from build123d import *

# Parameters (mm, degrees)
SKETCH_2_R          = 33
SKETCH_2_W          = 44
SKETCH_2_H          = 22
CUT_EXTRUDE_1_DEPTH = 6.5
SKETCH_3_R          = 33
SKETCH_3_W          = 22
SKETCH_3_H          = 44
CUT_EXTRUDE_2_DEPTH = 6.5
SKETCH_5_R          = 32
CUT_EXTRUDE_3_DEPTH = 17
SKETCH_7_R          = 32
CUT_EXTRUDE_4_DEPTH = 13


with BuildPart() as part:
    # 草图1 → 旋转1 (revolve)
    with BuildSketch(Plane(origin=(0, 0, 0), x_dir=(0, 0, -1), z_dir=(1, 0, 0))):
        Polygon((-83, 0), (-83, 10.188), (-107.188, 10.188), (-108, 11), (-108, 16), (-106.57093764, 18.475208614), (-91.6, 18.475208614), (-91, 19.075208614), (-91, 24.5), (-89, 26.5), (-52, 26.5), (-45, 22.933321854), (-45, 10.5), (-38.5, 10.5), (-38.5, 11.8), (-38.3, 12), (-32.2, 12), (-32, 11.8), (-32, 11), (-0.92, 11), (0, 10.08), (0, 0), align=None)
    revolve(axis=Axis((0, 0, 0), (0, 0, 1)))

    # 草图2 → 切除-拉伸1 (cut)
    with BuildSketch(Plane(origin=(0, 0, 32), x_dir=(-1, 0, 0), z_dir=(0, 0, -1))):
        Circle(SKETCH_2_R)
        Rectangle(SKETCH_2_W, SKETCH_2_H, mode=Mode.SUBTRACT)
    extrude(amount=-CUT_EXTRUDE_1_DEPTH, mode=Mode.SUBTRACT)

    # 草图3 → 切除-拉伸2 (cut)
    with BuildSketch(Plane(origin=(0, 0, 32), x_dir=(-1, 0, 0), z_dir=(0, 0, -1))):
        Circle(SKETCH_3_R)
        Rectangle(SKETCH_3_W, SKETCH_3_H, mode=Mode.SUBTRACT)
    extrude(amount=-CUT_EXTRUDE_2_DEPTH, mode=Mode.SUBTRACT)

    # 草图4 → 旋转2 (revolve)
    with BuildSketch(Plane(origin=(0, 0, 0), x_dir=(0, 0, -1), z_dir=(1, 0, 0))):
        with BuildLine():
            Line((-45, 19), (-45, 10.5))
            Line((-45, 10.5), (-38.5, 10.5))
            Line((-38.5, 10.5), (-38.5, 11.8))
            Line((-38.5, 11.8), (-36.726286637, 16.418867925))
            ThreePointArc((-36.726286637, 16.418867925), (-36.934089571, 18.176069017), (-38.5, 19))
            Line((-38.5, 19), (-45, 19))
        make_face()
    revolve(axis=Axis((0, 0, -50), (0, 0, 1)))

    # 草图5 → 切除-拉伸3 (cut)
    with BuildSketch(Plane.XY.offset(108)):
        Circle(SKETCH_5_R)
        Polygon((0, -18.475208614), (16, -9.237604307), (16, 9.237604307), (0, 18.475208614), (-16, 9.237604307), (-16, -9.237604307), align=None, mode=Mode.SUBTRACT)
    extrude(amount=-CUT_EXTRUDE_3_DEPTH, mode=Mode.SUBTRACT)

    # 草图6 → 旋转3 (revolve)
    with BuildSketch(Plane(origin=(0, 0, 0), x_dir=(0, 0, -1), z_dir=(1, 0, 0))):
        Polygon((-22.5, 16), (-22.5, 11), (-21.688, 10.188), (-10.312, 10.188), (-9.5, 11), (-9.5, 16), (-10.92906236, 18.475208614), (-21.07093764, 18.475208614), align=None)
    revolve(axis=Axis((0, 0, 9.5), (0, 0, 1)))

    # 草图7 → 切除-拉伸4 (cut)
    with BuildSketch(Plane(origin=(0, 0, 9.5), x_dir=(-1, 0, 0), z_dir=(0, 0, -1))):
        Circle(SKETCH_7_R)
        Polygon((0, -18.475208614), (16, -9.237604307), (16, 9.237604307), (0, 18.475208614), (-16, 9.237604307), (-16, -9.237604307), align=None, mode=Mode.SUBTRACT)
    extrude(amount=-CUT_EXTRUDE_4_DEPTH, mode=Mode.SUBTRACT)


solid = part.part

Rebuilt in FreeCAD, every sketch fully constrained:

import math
import FreeCAD as App
import Part
import Sketcher

V = App.Vector
Q = App.Units.Quantity


def add_polygon(sketch, points):
    """Adds a closed chain of lines whose ends are joined by coincident constraints."""
    first, n = sketch.GeometryCount, len(points)
    for a, b in zip(points, points[1:] + points[:1]):
        sketch.addGeometry(Part.LineSegment(App.Vector(*a, 0), App.Vector(*b, 0)), False)
    for i in range(n):
        sketch.addConstraint(Sketcher.Constraint("Coincident", first + i, 2, first + (i + 1) % n, 1))

doc = App.newDocument("Part")
params = doc.addObject("Spreadsheet::Sheet", "Params")
for row, (alias, value) in enumerate([
    ("sketch1_width", "5 mm"),
    ("sketch1_height", "83 mm"),
    ("sketch1_height2", "37 mm"),
    ("sketch1_width2", "0.8 mm"),
    ("sketch1_width3", "1.3 mm"),
    ("revolution_angle", "360 deg"),
    ("sketch2_diameter", "66 mm"),
    ("sketch2_width", "44 mm"),
    ("sketch2_height", "22 mm"),
    ("pocket1_length", "6.5 mm"),
    ("sketch3_diameter", "66 mm"),
    ("sketch3_width", "22 mm"),
    ("sketch3_height", "44 mm"),
    ("pocket2_length", "6.5 mm"),
    ("sketch4_radius", "1.9 mm"),
    ("sketch4_width", "8.5 mm"),
    ("sketch4_width2", "1.3 mm"),
    ("sketch4_height", "6.5 mm"),
    ("revolution2_angle", "360 deg"),
    ("sketch5_diameter", "64 mm"),
    ("pocket3_length", "17 mm"),
    ("sketch6_width", "5 mm"),
    ("revolution3_angle", "360 deg"),
    ("sketch7_diameter", "64 mm"),
    ("pocket4_length", "13 mm"),
], start=1):
    params.set(f"A{row}", alias)
    params.set(f"B{row}", "=" + value)
    params.setAlias(f"B{row}", alias)

body = doc.addObject("PartDesign::Body", "Body")

sketch1 = doc.addObject("Sketcher::SketchObject", "Sketch")
body.addObject(sketch1)
sketch1.AttachmentSupport = (doc.YZ_Plane, [""])
sketch1.MapMode = "FlatFace"
add_polygon(sketch1, [(10.188, 83), (0, 83), (0, 0), (10.08, 0), (11, 0.92), (11, 32), (11.8, 32), (12, 32.2), (12, 38.3), (11.8, 38.5), (10.5, 38.5), (10.5, 45), (22.933322, 45), (26.5, 52), (26.5, 89), (24.5, 91), (19.075209, 91), (18.475209, 91.6), (18.475209, 106.570938), (16, 108), (11, 108), (10.188, 107.188)])
sketch1.addConstraint(Sketcher.Constraint("Horizontal", 0))
sketch1.addConstraint(Sketcher.Constraint("Vertical", 1))
sketch1.addConstraint(Sketcher.Constraint("Horizontal", 2))
sketch1.addConstraint(Sketcher.Constraint("Vertical", 4))
sketch1.addConstraint(Sketcher.Constraint("Horizontal", 5))
sketch1.addConstraint(Sketcher.Constraint("Vertical", 7))
sketch1.addConstraint(Sketcher.Constraint("Horizontal", 9))
sketch1.addConstraint(Sketcher.Constraint("Vertical", 10))
sketch1.addConstraint(Sketcher.Constraint("Horizontal", 11))
sketch1.addConstraint(Sketcher.Constraint("Vertical", 13))
sketch1.addConstraint(Sketcher.Constraint("Horizontal", 15))
sketch1.addConstraint(Sketcher.Constraint("Vertical", 17))
sketch1.addConstraint(Sketcher.Constraint("Horizontal", 19))
sketch1.addConstraint(Sketcher.Constraint("Vertical", 21))
sketch1.addConstraint(Sketcher.Constraint("Coincident", 1, 2, -1, 1))
sketch1.addConstraint(Sketcher.Constraint("Parallel", 3, 6))
sketch1.addConstraint(Sketcher.Constraint("Perpendicular", 6, 8))
sketch1.addConstraint(Sketcher.Constraint("Parallel", 8, 14))
sketch1.addConstraint(Sketcher.Constraint("Parallel", 14, 16))
sketch1.addConstraint(Sketcher.Constraint("Perpendicular", 16, 20))
sketch1.addConstraint(Sketcher.Constraint("Vertical", 5, 2, 8, 2))
sketch1.addConstraint(Sketcher.Constraint("Vertical", 4, 2, 19, 2))
sketch1.addConstraint(Sketcher.Constraint("Equal", 6, 8))
sketch1.addConstraint(Sketcher.Constraint("DistanceX", 19, 2, 19, 1, 5.0))
sketch1.addConstraint(Sketcher.Constraint("DistanceY", 1, 2, 1, 1, 83.0))
sketch1.addConstraint(Sketcher.Constraint("DistanceY", 13, 1, 13, 2, 37.0))
sketch1.addConstraint(Sketcher.Constraint("Angle", 12, Q("63 deg")))
sketch1.addConstraint(Sketcher.Constraint("Angle", 18, Q("150 deg")))
sketch1.addConstraint(Sketcher.Constraint("DistanceX", 5, 1, 5, 2, 0.8))
sketch1.addConstraint(Sketcher.Constraint("DistanceX", 9, 2, 9, 1, 1.3))
sketch1.addConstraint(Sketcher.Constraint("DistanceY", 7, 1, 7, 2, 6.1))
sketch1.addConstraint(Sketcher.Constraint("DistanceY", 10, 1, 10, 2, 6.5))
sketch1.addConstraint(Sketcher.Constraint("DistanceX", -1, 1, 3, 2, 11.0))
sketch1.addConstraint(Sketcher.Constraint("DistanceY", -1, 1, 4, 2, 32.0))
sketch1.addConstraint(Sketcher.Constraint("DistanceX", -1, 1, 6, 2, 12.0))
sketch1.addConstraint(Sketcher.Constraint("DistanceY", -1, 1, 12, 2, 52.0))
sketch1.addConstraint(Sketcher.Constraint("DistanceY", -1, 1, 14, 2, 91.0))
sketch1.addConstraint(Sketcher.Constraint("DistanceY", -1, 1, 18, 2, 108.0))
sketch1.addConstraint(Sketcher.Constraint("DistanceX", 10, 2, 12, 2, 16.0))
sketch1.addConstraint(Sketcher.Constraint("DistanceX", 2, 1, 2, 2, 10.08))
sketch1.addConstraint(Sketcher.Constraint("DistanceY", -1, 1, 16, 2, 91.6))
sketch1.addConstraint(Sketcher.Constraint("DistanceX", 0, 2, 0, 1, 10.188))
sketch1.addConstraint(Sketcher.Constraint("DistanceX", 15, 2, 15, 1, 5.424791))
sketch1.setExpression("Constraints[45]", "Params.sketch1_width")
sketch1.setExpression("Constraints[46]", "Params.sketch1_height")
sketch1.setExpression("Constraints[47]", "Params.sketch1_height2")
sketch1.setExpression("Constraints[50]", "Params.sketch1_width2")
sketch1.setExpression("Constraints[51]", "Params.sketch1_width3")
revolution = doc.addObject("PartDesign::Revolution", "Revolution")
body.addObject(revolution)
revolution.Profile = sketch1
revolution.ReferenceAxis = (sketch1, ["V_Axis"])
revolution.setExpression("Angle", "Params.revolution_angle")

sketch2 = doc.addObject("Sketcher::SketchObject", "Sketch001")
body.addObject(sketch2)
sketch2.AttachmentSupport = (doc.XY_Plane, [""])
sketch2.MapMode = "FlatFace"
sketch2.AttachmentOffset = App.Placement(V(0, 0, 32), App.Rotation())
sketch2.addGeometry(Part.Circle(V(0, 0, 0), V(0, 0, 1), 33), False)
add_polygon(sketch2, [(-22, -11), (22, -11), (22, 11), (-22, 11)])
sketch2.addConstraint(Sketcher.Constraint("Horizontal", 1))
sketch2.addConstraint(Sketcher.Constraint("Vertical", 2))
sketch2.addConstraint(Sketcher.Constraint("Horizontal", 3))
sketch2.addConstraint(Sketcher.Constraint("Vertical", 4))
sketch2.addConstraint(Sketcher.Constraint("Coincident", 0, 3, -1, 1))
sketch2.addConstraint(Sketcher.Constraint("Symmetric", 1, 2, 3, 2, -1, 1))
sketch2.addConstraint(Sketcher.Constraint("Diameter", 0, 66.0))
sketch2.addConstraint(Sketcher.Constraint("DistanceX", 1, 1, 1, 2, 44.0))
sketch2.addConstraint(Sketcher.Constraint("DistanceY", 2, 1, 2, 2, 22.0))
sketch2.setExpression("Constraints[10]", "Params.sketch2_diameter")
sketch2.setExpression("Constraints[11]", "Params.sketch2_width")
sketch2.setExpression("Constraints[12]", "Params.sketch2_height")
pocket1 = doc.addObject("PartDesign::Pocket", "Pocket")
body.addObject(pocket1)
pocket1.Profile = sketch2
pocket1.setExpression("Length", "Params.pocket1_length")
pocket1.Reversed = True

sketch3 = doc.addObject("Sketcher::SketchObject", "Sketch002")
body.addObject(sketch3)
sketch3.AttachmentSupport = (doc.XY_Plane, [""])
sketch3.MapMode = "FlatFace"
sketch3.AttachmentOffset = App.Placement(V(0, 0, 32), App.Rotation())
sketch3.addGeometry(Part.Circle(V(0, 0, 0), V(0, 0, 1), 33), False)
add_polygon(sketch3, [(-11, -22), (11, -22), (11, 22), (-11, 22)])
sketch3.addConstraint(Sketcher.Constraint("Horizontal", 1))
sketch3.addConstraint(Sketcher.Constraint("Vertical", 2))
sketch3.addConstraint(Sketcher.Constraint("Horizontal", 3))
sketch3.addConstraint(Sketcher.Constraint("Vertical", 4))
sketch3.addConstraint(Sketcher.Constraint("Coincident", 0, 3, -1, 1))
sketch3.addConstraint(Sketcher.Constraint("Symmetric", 1, 2, 3, 2, -1, 1))
sketch3.addConstraint(Sketcher.Constraint("Diameter", 0, 66.0))
sketch3.addConstraint(Sketcher.Constraint("DistanceX", 1, 1, 1, 2, 22.0))
sketch3.addConstraint(Sketcher.Constraint("DistanceY", 2, 1, 2, 2, 44.0))
sketch3.setExpression("Constraints[10]", "Params.sketch3_diameter")
sketch3.setExpression("Constraints[11]", "Params.sketch3_width")
sketch3.setExpression("Constraints[12]", "Params.sketch3_height")
pocket2 = doc.addObject("PartDesign::Pocket", "Pocket001")
body.addObject(pocket2)
pocket2.Profile = sketch3
pocket2.setExpression("Length", "Params.pocket2_length")
pocket2.Reversed = True

sketch4 = doc.addObject("Sketcher::SketchObject", "Sketch003")
body.addObject(sketch4)
sketch4.AttachmentSupport = (doc.YZ_Plane, [""])
sketch4.MapMode = "FlatFace"
sketch4.addGeometry(Part.LineSegment(V(19, 45, 0), V(10.5, 45, 0)), False)
sketch4.addGeometry(Part.LineSegment(V(10.5, 45, 0), V(10.5, 38.5, 0)), False)
sketch4.addGeometry(Part.LineSegment(V(10.5, 38.5, 0), V(11.8, 38.5, 0)), False)
sketch4.addGeometry(Part.LineSegment(V(11.8, 38.5, 0), V(16.418868, 36.726287, 0)), False)
sketch4.addGeometry(Part.ArcOfCircle(Part.Circle(V(17.1, 38.5, 0), V(0, 0, 1), 1.9), math.radians(-111.007525), math.radians(0)), False)
sketch4.addGeometry(Part.LineSegment(V(19, 38.5, 0), V(19, 45, 0)), False)
sketch4.addConstraint(Sketcher.Constraint("Coincident", 0, 2, 1, 1))
sketch4.addConstraint(Sketcher.Constraint("Coincident", 1, 2, 2, 1))
sketch4.addConstraint(Sketcher.Constraint("Coincident", 2, 2, 3, 1))
sketch4.addConstraint(Sketcher.Constraint("Tangent", 3, 2, 4, 1))
sketch4.addConstraint(Sketcher.Constraint("Tangent", 4, 2, 5, 1))
sketch4.addConstraint(Sketcher.Constraint("Coincident", 5, 2, 0, 1))
sketch4.addConstraint(Sketcher.Constraint("Horizontal", 0))
sketch4.addConstraint(Sketcher.Constraint("Vertical", 1))
sketch4.addConstraint(Sketcher.Constraint("Horizontal", 2))
sketch4.addConstraint(Sketcher.Constraint("Vertical", 5))
sketch4.addConstraint(Sketcher.Constraint("Horizontal", 4, 3, 1, 2))
sketch4.addConstraint(Sketcher.Constraint("Radius", 4, 1.9))
sketch4.addConstraint(Sketcher.Constraint("DistanceX", 0, 2, 0, 1, 8.5))
sketch4.addConstraint(Sketcher.Constraint("DistanceX", 2, 1, 2, 2, 1.3))
sketch4.addConstraint(Sketcher.Constraint("DistanceY", 1, 2, 1, 1, 6.5))
sketch4.addConstraint(Sketcher.Constraint("DistanceY", -1, 1, 0, 2, 45.0))
sketch4.addConstraint(Sketcher.Constraint("DistanceX", -1, 1, 4, 2, 19.0))
sketch4.setExpression("Constraints[11]", "Params.sketch4_radius")
sketch4.setExpression("Constraints[12]", "Params.sketch4_width")
sketch4.setExpression("Constraints[13]", "Params.sketch4_width2")
sketch4.setExpression("Constraints[14]", "Params.sketch4_height")
revolution2 = doc.addObject("PartDesign::Revolution", "Revolution001")
body.addObject(revolution2)
revolution2.Profile = sketch4
revolution2.ReferenceAxis = (sketch4, ["V_Axis"])
revolution2.setExpression("Angle", "Params.revolution2_angle")

sketch5 = doc.addObject("Sketcher::SketchObject", "Sketch004")
body.addObject(sketch5)
sketch5.AttachmentSupport = (doc.XY_Plane, [""])
sketch5.MapMode = "FlatFace"
sketch5.AttachmentOffset = App.Placement(V(0, 0, 108), App.Rotation())
sketch5.addGeometry(Part.Circle(V(0, 0, 0), V(0, 0, 1), 32), False)
add_polygon(sketch5, [(16, -9.237604), (0, -18.475209), (-16, -9.237604), (-16, 9.237604), (0, 18.475209), (16, 9.237604)])
sketch5.addConstraint(Sketcher.Constraint("Vertical", 3))
sketch5.addConstraint(Sketcher.Constraint("Vertical", 6))
sketch5.addConstraint(Sketcher.Constraint("Coincident", 0, 3, -1, 1))
sketch5.addConstraint(Sketcher.Constraint("Symmetric", 1, 2, 4, 2, -1, 1))
sketch5.addConstraint(Sketcher.Constraint("Symmetric", 2, 2, 5, 2, -1, 1))
sketch5.addConstraint(Sketcher.Constraint("PointOnObject", 1, 2, -2))
sketch5.addConstraint(Sketcher.Constraint("Parallel", 1, 4))
sketch5.addConstraint(Sketcher.Constraint("Horizontal", 3, 2, 5, 2))
sketch5.addConstraint(Sketcher.Constraint("Diameter", 0, 64.0))
sketch5.addConstraint(Sketcher.Constraint("Angle", 1, Q("-150 deg")))
sketch5.addConstraint(Sketcher.Constraint("DistanceX", 2, 2, -1, 1, 16.0))
sketch5.addConstraint(Sketcher.Constraint("DistanceY", 3, 1, 3, 2, 18.475209))
sketch5.setExpression("Constraints[14]", "Params.sketch5_diameter")
pocket3 = doc.addObject("PartDesign::Pocket", "Pocket002")
body.addObject(pocket3)
pocket3.Profile = sketch5
pocket3.setExpression("Length", "Params.pocket3_length")

sketch6 = doc.addObject("Sketcher::SketchObject", "Sketch005")
body.addObject(sketch6)
sketch6.AttachmentSupport = (doc.YZ_Plane, [""])
sketch6.MapMode = "FlatFace"
add_polygon(sketch6, [(16, 22.5), (11, 22.5), (10.188, 21.688), (10.188, 10.312), (11, 9.5), (16, 9.5), (18.475209, 10.929062), (18.475209, 21.070938)])
sketch6.addConstraint(Sketcher.Constraint("Horizontal", 0))
sketch6.addConstraint(Sketcher.Constraint("Vertical", 2))
sketch6.addConstraint(Sketcher.Constraint("Horizontal", 4))
sketch6.addConstraint(Sketcher.Constraint("Vertical", 6))
sketch6.addConstraint(Sketcher.Constraint("Perpendicular", 1, 3))
sketch6.addConstraint(Sketcher.Constraint("Vertical", 0, 2, 3, 2))
sketch6.addConstraint(Sketcher.Constraint("Vertical", 4, 2, 7, 2))
sketch6.addConstraint(Sketcher.Constraint("Equal", 1, 3))
sketch6.addConstraint(Sketcher.Constraint("Equal", 5, 7))
sketch6.addConstraint(Sketcher.Constraint("DistanceX", 0, 2, 0, 1, 5.0))
sketch6.addConstraint(Sketcher.Constraint("Angle", 5, Q("30 deg")))
sketch6.addConstraint(Sketcher.Constraint("DistanceX", -1, 1, 0, 2, 11.0))
sketch6.addConstraint(Sketcher.Constraint("DistanceY", 3, 2, 0, 2, 13.0))
sketch6.addConstraint(Sketcher.Constraint("DistanceY", -1, 1, 0, 2, 22.5))
sketch6.addConstraint(Sketcher.Constraint("DistanceY", 2, 2, 2, 1, 11.376))
sketch6.addConstraint(Sketcher.Constraint("DistanceY", 6, 1, 6, 2, 10.141875))
sketch6.setExpression("Constraints[17]", "Params.sketch6_width")
revolution3 = doc.addObject("PartDesign::Revolution", "Revolution002")
body.addObject(revolution3)
revolution3.Profile = sketch6
revolution3.ReferenceAxis = (sketch6, ["V_Axis"])
revolution3.setExpression("Angle", "Params.revolution3_angle")

sketch7 = doc.addObject("Sketcher::SketchObject", "Sketch006")
body.addObject(sketch7)
sketch7.AttachmentSupport = (doc.XY_Plane, [""])
sketch7.MapMode = "FlatFace"
sketch7.AttachmentOffset = App.Placement(V(0, 0, 9.5), App.Rotation())
sketch7.addGeometry(Part.Circle(V(0, 0, 0), V(0, 0, 1), 32), False)
add_polygon(sketch7, [(-16, -9.237604), (0, -18.475209), (16, -9.237604), (16, 9.237604), (0, 18.475209), (-16, 9.237604)])
sketch7.addConstraint(Sketcher.Constraint("Vertical", 3))
sketch7.addConstraint(Sketcher.Constraint("Vertical", 6))
sketch7.addConstraint(Sketcher.Constraint("Coincident", 0, 3, -1, 1))
sketch7.addConstraint(Sketcher.Constraint("Symmetric", 1, 2, 4, 2, -1, 1))
sketch7.addConstraint(Sketcher.Constraint("Symmetric", 2, 2, 5, 2, -1, 1))
sketch7.addConstraint(Sketcher.Constraint("PointOnObject", 1, 2, -2))
sketch7.addConstraint(Sketcher.Constraint("Parallel", 1, 4))
sketch7.addConstraint(Sketcher.Constraint("Horizontal", 3, 2, 5, 2))
sketch7.addConstraint(Sketcher.Constraint("Diameter", 0, 64.0))
sketch7.addConstraint(Sketcher.Constraint("Angle", 1, Q("-30 deg")))
sketch7.addConstraint(Sketcher.Constraint("DistanceX", -1, 1, 2, 2, 16.0))
sketch7.addConstraint(Sketcher.Constraint("DistanceY", 3, 1, 3, 2, 18.475209))
sketch7.setExpression("Constraints[14]", "Params.sketch7_diameter")
pocket4 = doc.addObject("PartDesign::Pocket", "Pocket003")
body.addObject(pocket4)
pocket4.Profile = sketch7
pocket4.setExpression("Length", "Params.pocket4_length")
pocket4.Reversed = True

doc.recompute()
